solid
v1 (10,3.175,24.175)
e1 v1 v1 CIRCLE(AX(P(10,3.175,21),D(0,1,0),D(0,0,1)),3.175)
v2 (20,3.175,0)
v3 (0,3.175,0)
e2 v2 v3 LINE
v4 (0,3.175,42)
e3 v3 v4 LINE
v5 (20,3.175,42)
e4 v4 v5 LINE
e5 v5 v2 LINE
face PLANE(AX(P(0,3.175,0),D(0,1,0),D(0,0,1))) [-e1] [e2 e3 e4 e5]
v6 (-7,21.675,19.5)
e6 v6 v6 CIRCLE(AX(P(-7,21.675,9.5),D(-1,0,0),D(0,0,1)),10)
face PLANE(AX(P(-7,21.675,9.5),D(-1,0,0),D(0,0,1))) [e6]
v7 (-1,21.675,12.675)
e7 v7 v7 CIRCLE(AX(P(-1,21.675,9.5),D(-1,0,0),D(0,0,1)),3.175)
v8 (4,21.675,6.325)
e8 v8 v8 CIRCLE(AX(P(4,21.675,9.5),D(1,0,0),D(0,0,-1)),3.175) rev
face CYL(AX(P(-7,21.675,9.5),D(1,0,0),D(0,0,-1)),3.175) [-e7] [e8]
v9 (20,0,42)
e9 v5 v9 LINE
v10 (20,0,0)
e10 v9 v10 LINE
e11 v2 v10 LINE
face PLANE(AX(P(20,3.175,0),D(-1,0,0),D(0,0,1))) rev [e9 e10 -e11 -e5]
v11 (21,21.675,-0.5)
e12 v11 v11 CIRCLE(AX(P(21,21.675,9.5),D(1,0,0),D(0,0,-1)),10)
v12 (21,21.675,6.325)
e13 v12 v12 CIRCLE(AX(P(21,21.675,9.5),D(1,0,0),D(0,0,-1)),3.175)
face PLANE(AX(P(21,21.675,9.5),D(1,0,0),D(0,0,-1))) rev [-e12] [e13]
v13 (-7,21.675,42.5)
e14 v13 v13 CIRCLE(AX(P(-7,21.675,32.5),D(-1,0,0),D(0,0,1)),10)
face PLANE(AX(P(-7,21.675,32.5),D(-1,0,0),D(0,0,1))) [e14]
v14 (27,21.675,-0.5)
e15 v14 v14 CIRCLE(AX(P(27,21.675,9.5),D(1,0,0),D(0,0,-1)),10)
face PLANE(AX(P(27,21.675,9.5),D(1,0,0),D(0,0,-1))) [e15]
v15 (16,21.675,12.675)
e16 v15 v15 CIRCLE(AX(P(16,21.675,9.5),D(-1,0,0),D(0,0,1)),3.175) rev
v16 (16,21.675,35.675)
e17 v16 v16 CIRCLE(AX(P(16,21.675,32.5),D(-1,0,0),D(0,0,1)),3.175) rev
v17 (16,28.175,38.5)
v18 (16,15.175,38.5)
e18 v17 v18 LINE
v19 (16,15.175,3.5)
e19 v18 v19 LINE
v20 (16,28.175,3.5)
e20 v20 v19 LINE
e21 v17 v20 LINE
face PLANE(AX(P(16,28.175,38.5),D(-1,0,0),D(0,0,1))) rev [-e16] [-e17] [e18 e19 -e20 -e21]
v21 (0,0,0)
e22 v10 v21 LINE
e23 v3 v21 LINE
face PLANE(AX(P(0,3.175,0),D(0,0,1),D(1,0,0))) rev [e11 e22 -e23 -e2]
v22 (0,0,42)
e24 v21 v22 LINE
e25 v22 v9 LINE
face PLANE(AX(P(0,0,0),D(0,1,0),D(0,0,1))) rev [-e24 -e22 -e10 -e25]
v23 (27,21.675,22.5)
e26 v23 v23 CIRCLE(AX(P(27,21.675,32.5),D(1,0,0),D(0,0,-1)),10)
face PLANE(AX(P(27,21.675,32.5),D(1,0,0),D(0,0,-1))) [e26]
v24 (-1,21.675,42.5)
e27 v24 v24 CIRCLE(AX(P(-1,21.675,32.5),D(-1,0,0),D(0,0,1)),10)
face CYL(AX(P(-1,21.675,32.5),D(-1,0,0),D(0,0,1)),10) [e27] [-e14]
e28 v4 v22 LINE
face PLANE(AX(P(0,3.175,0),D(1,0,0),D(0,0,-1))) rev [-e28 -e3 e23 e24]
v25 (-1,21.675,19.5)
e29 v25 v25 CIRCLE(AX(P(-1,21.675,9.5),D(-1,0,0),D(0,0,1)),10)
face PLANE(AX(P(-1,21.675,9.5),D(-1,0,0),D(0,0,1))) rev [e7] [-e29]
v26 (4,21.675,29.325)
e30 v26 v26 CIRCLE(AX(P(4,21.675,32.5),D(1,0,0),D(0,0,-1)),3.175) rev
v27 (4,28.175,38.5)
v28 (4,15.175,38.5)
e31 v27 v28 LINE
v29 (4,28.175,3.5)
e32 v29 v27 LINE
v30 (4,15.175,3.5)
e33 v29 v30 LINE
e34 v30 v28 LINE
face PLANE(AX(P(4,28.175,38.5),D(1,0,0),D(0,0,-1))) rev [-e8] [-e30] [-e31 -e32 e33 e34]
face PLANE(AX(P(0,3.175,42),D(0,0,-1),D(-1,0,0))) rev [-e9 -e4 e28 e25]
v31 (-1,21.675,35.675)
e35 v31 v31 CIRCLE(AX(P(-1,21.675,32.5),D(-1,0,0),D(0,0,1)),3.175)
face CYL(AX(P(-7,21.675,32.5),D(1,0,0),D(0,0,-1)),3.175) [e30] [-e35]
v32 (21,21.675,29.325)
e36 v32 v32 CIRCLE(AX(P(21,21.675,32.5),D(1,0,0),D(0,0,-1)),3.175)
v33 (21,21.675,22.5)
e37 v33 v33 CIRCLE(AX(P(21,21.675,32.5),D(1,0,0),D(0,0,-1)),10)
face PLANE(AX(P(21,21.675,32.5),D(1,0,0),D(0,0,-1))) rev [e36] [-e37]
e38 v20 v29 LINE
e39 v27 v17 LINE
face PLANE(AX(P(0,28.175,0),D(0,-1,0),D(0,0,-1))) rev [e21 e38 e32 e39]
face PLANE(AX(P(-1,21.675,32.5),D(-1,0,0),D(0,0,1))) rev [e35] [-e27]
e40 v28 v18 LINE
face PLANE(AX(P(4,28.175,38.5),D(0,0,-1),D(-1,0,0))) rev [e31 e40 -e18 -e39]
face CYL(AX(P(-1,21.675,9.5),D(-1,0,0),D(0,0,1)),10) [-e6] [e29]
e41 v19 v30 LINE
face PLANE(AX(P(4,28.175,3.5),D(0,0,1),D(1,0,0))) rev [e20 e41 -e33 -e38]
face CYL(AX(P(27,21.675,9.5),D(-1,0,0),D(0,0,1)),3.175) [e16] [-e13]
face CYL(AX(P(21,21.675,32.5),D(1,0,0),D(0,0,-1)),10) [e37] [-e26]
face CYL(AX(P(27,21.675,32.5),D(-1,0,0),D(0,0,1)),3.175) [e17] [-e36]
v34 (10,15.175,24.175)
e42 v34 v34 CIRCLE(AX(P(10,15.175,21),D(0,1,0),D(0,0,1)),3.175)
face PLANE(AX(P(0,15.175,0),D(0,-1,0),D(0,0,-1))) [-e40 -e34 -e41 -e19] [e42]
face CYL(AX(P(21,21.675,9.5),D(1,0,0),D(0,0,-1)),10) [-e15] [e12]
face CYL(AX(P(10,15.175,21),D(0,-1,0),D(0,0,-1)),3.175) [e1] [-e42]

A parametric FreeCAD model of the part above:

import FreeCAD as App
import Part
import Sketcher
Q = App.Units.Quantity


def add_polygon(sketch, points):
    """Adds a closed chain of lines whose ends are joined by coincident constraints."""
    first, n = sketch.GeometryCount, len(points)
    for a, b in zip(points, points[1:] + points[:1]):
        sketch.addGeometry(Part.LineSegment(App.Vector(*a, 0), App.Vector(*b, 0)), False)
    for i in range(n):
        sketch.addConstraint(Sketcher.Constraint("Coincident", first + i, 2, first + (i + 1) % n, 1))

doc = App.newDocument("Part")
body = doc.addObject("PartDesign::Body", "Body")

# Sketch on XZ plane
sketch1 = doc.addObject("Sketcher::SketchObject", "Sketch")
body.addObject(sketch1)
sketch1.AttachmentSupport = (doc.XZ_Plane, [""])
sketch1.MapMode = "FlatFace"
add_polygon(sketch1, [(0, 0), (0, 42), (20, 42), (20, 0)])  # lines 0-3
sketch1.addConstraint(Sketcher.Constraint("Vertical", 0))
sketch1.addConstraint(Sketcher.Constraint("Horizontal", 1))
sketch1.addConstraint(Sketcher.Constraint("Vertical", 2))
sketch1.addConstraint(Sketcher.Constraint("Horizontal", 3))
sketch1.addConstraint(Sketcher.Constraint("Coincident", 3, 2, -1, 1))
sketch1.addConstraint(Sketcher.Constraint("DistanceX", 1, 1, 1, 2, Q("20 mm")))
sketch1.addConstraint(Sketcher.Constraint("DistanceY", 0, 1, 0, 2, Q("42 mm")))
pad1 = doc.addObject("PartDesign::Pad", "Pad")
body.addObject(pad1)
pad1.Profile = sketch1
pad1.Length = 3.175
pad1.Reversed = True

# Sketch on XZ plane
sketch2 = doc.addObject("Sketcher::SketchObject", "Sketch001")
body.addObject(sketch2)
sketch2.AttachmentSupport = (doc.XZ_Plane, [""])
sketch2.MapMode = "FlatFace"
sketch2.AttachmentOffset = App.Placement(App.Vector(0, 0, -3.175), App.Rotation())
sketch2.addGeometry(Part.Circle(App.Vector(10, 21, 0), App.Vector(0, 0, 1), 3.2), False)
sketch2.addConstraint(Sketcher.Constraint("Diameter", 0, Q("6.35 mm")))
sketch2.addConstraint(Sketcher.Constraint("DistanceX", -1, 1, 0, 3, Q("10 mm")))
sketch2.addConstraint(Sketcher.Constraint("DistanceY", -1, 1, 0, 3, Q("21 mm")))
pad2 = doc.addObject("PartDesign::Pad", "Pad001")
body.addObject(pad2)
pad2.Profile = sketch2
pad2.Length = 12
pad2.Reversed = True

# Sketch on XZ plane
sketch3 = doc.addObject("Sketcher::SketchObject", "Sketch002")
body.addObject(sketch3)
sketch3.AttachmentSupport = (doc.XZ_Plane, [""])
sketch3.MapMode = "FlatFace"
sketch3.AttachmentOffset = App.Placement(App.Vector(0, 0, -15.175), App.Rotation())
add_polygon(sketch3, [(4, 4), (4, 38), (16, 38), (16, 4)])  # lines 0-3
sketch3.addConstraint(Sketcher.Constraint("Vertical", 0))
sketch3.addConstraint(Sketcher.Constraint("Horizontal", 1))
sketch3.addConstraint(Sketcher.Constraint("Vertical", 2))
sketch3.addConstraint(Sketcher.Constraint("Horizontal", 3))
sketch3.addConstraint(Sketcher.Constraint("DistanceX", 1, 1, 1, 2, Q("12 mm")))
sketch3.addConstraint(Sketcher.Constraint("DistanceY", 0, 1, 0, 2, Q("35 mm")))
sketch3.addConstraint(Sketcher.Constraint("DistanceX", -1, 1, 0, 2, Q("4 mm")))
sketch3.addConstraint(Sketcher.Constraint("DistanceY", -1, 1, 0, 2, Q("38.5 mm")))
pad3 = doc.addObject("PartDesign::Pad", "Pad002")
body.addObject(pad3)
pad3.Profile = sketch3
pad3.Length = 13
pad3.Reversed = True

# Sketch on YZ plane
sketch4 = doc.addObject("Sketcher::SketchObject", "Sketch003")
body.addObject(sketch4)
sketch4.AttachmentSupport = (doc.YZ_Plane, [""])
sketch4.MapMode = "FlatFace"
sketch4.AttachmentOffset = App.Placement(App.Vector(0, 0, 4), App.Rotation())
sketch4.addGeometry(Part.Circle(App.Vector(21.7, 9.5, 0), App.Vector(0, 0, 1), 3.2), False)
sketch4.addGeometry(Part.Circle(App.Vector(21.7, 32.5, 0), App.Vector(0, 0, 1), 3.2), False)
sketch4.addConstraint(Sketcher.Constraint("Equal", 0, 1))
sketch4.addConstraint(Sketcher.Constraint("Vertical", 0, 3, 1, 3))
sketch4.addConstraint(Sketcher.Constraint("Diameter", 0, Q("6.35 mm")))
sketch4.addConstraint(Sketcher.Constraint("DistanceY", 0, 3, 1, 3, Q("23 mm")))
sketch4.addConstraint(Sketcher.Constraint("DistanceY", -1, 1, 0, 3, Q("9.5 mm")))
sketch4.addConstraint(Sketcher.Constraint("DistanceX", -1, 1, 0, 3, Q("21.675 mm")))
pad4 = doc.addObject("PartDesign::Pad", "Pad003")
body.addObject(pad4)
pad4.Profile = sketch4
pad4.Length = 11
pad4.Reversed = True

# Sketch on YZ plane
sketch5 = doc.addObject("Sketcher::SketchObject", "Sketch004")
body.addObject(sketch5)
sketch5.AttachmentSupport = (doc.YZ_Plane, [""])
sketch5.MapMode = "FlatFace"
sketch5.AttachmentOffset = App.Placement(App.Vector(0, 0, 27), App.Rotation())
sketch5.addGeometry(Part.Circle(App.Vector(21.7, 32.5, 0), App.Vector(0, 0, 1), 3.2), False)
sketch5.addGeometry(Part.Circle(App.Vector(21.7, 9.5, 0), App.Vector(0, 0, 1), 3.2), False)
sketch5.addConstraint(Sketcher.Constraint("Equal", 0, 1))
sketch5.addConstraint(Sketcher.Constraint("Vertical", 0, 3, 1, 3))
sketch5.addConstraint(Sketcher.Constraint("Diameter", 0, Q("6.35 mm")))
sketch5.addConstraint(Sketcher.Constraint("DistanceY", 1, 3, 0, 3, Q("23 mm")))
sketch5.addConstraint(Sketcher.Constraint("DistanceY", -1, 1, 0, 3, Q("32.5 mm")))
sketch5.addConstraint(Sketcher.Constraint("DistanceX", -1, 1, 0, 3, Q("21.675 mm")))
pad5 = doc.addObject("PartDesign::Pad", "Pad004")
body.addObject(pad5)
pad5.Profile = sketch5
pad5.Length = 11
pad5.Reversed = True

# Sketch on YZ plane
sketch6 = doc.addObject("Sketcher::SketchObject", "Sketch005")
body.addObject(sketch6)
sketch6.AttachmentSupport = (doc.YZ_Plane, [""])
sketch6.MapMode = "FlatFace"
sketch6.AttachmentOffset = App.Placement(App.Vector(0, 0, -1), App.Rotation())
sketch6.addGeometry(Part.Circle(App.Vector(21.7, 9.5, 0), App.Vector(0, 0, 1), 10), False)
sketch6.addGeometry(Part.Circle(App.Vector(21.7, 9.5, 0), App.Vector(0, 0, 1), 3.2), False)
sketch6.addGeometry(Part.Circle(App.Vector(21.7, 32.5, 0), App.Vector(0, 0, 1), 10), False)
sketch6.addGeometry(Part.Circle(App.Vector(21.7, 32.5, 0), App.Vector(0, 0, 1), 3.2), False)
sketch6.addConstraint(Sketcher.Constraint("Coincident", 1, 3, 0, 3))
sketch6.addConstraint(Sketcher.Constraint("Coincident", 3, 3, 2, 3))
sketch6.addConstraint(Sketcher.Constraint("Equal", 0, 2))
sketch6.addConstraint(Sketcher.Constraint("Equal", 1, 3))
sketch6.addConstraint(Sketcher.Constraint("Vertical", 1, 3, 2, 3))
sketch6.addConstraint(Sketcher.Constraint("Diameter", 0, Q("20 mm")))
sketch6.addConstraint(Sketcher.Constraint("Diameter", 1, Q("6.35 mm")))
sketch6.addConstraint(Sketcher.Constraint("DistanceY", 0, 3, 2, 3, Q("23 mm")))
sketch6.addConstraint(Sketcher.Constraint("DistanceY", -1, 1, 0, 3, Q("9.5 mm")))
sketch6.addConstraint(Sketcher.Constraint("DistanceX", -1, 1, 0, 3, Q("21.675 mm")))
pad6 = doc.addObject("PartDesign::Pad", "Pad005")
body.addObject(pad6)
pad6.Profile = sketch6
pad6.Length = 6
pad6.Reversed = True

# Sketch on YZ plane
sketch7 = doc.addObject("Sketcher::SketchObject", "Sketch006")
body.addObject(sketch7)
sketch7.AttachmentSupport = (doc.YZ_Plane, [""])
sketch7.MapMode = "FlatFace"
sketch7.AttachmentOffset = App.Placement(App.Vector(0, 0, 27), App.Rotation())
sketch7.addGeometry(Part.Circle(App.Vector(21.7, 32.5, 0), App.Vector(0, 0, 1), 10), False)
sketch7.addGeometry(Part.Circle(App.Vector(21.7, 32.5, 0), App.Vector(0, 0, 1), 3.2), False)
sketch7.addGeometry(Part.Circle(App.Vector(21.7, 9.5, 0), App.Vector(0, 0, 1), 10), False)
sketch7.addGeometry(Part.Circle(App.Vector(21.7, 9.5, 0), App.Vector(0, 0, 1), 3.2), False)
sketch7.addConstraint(Sketcher.Constraint("Coincident", 1, 3, 0, 3))
sketch7.addConstraint(Sketcher.Constraint("Coincident", 3, 3, 2, 3))
sketch7.addConstraint(Sketcher.Constraint("Equal", 0, 2))
sketch7.addConstraint(Sketcher.Constraint("Equal", 1, 3))
sketch7.addConstraint(Sketcher.Constraint("Vertical", 1, 3, 2, 3))
sketch7.addConstraint(Sketcher.Constraint("Diameter", 0, Q("20 mm")))
sketch7.addConstraint(Sketcher.Constraint("Diameter", 1, Q("6.35 mm")))
sketch7.addConstraint(Sketcher.Constraint("DistanceY", 2, 3, 0, 3, Q("23 mm")))
sketch7.addConstraint(Sketcher.Constraint("DistanceY", -1, 1, 0, 3, Q("32.5 mm")))
sketch7.addConstraint(Sketcher.Constraint("DistanceX", -1, 1, 0, 3, Q("21.675 mm")))
pad7 = doc.addObject("PartDesign::Pad", "Pad006")
body.addObject(pad7)
pad7.Profile = sketch7
pad7.Length = 6
pad7.Reversed = True

doc.recompute()
